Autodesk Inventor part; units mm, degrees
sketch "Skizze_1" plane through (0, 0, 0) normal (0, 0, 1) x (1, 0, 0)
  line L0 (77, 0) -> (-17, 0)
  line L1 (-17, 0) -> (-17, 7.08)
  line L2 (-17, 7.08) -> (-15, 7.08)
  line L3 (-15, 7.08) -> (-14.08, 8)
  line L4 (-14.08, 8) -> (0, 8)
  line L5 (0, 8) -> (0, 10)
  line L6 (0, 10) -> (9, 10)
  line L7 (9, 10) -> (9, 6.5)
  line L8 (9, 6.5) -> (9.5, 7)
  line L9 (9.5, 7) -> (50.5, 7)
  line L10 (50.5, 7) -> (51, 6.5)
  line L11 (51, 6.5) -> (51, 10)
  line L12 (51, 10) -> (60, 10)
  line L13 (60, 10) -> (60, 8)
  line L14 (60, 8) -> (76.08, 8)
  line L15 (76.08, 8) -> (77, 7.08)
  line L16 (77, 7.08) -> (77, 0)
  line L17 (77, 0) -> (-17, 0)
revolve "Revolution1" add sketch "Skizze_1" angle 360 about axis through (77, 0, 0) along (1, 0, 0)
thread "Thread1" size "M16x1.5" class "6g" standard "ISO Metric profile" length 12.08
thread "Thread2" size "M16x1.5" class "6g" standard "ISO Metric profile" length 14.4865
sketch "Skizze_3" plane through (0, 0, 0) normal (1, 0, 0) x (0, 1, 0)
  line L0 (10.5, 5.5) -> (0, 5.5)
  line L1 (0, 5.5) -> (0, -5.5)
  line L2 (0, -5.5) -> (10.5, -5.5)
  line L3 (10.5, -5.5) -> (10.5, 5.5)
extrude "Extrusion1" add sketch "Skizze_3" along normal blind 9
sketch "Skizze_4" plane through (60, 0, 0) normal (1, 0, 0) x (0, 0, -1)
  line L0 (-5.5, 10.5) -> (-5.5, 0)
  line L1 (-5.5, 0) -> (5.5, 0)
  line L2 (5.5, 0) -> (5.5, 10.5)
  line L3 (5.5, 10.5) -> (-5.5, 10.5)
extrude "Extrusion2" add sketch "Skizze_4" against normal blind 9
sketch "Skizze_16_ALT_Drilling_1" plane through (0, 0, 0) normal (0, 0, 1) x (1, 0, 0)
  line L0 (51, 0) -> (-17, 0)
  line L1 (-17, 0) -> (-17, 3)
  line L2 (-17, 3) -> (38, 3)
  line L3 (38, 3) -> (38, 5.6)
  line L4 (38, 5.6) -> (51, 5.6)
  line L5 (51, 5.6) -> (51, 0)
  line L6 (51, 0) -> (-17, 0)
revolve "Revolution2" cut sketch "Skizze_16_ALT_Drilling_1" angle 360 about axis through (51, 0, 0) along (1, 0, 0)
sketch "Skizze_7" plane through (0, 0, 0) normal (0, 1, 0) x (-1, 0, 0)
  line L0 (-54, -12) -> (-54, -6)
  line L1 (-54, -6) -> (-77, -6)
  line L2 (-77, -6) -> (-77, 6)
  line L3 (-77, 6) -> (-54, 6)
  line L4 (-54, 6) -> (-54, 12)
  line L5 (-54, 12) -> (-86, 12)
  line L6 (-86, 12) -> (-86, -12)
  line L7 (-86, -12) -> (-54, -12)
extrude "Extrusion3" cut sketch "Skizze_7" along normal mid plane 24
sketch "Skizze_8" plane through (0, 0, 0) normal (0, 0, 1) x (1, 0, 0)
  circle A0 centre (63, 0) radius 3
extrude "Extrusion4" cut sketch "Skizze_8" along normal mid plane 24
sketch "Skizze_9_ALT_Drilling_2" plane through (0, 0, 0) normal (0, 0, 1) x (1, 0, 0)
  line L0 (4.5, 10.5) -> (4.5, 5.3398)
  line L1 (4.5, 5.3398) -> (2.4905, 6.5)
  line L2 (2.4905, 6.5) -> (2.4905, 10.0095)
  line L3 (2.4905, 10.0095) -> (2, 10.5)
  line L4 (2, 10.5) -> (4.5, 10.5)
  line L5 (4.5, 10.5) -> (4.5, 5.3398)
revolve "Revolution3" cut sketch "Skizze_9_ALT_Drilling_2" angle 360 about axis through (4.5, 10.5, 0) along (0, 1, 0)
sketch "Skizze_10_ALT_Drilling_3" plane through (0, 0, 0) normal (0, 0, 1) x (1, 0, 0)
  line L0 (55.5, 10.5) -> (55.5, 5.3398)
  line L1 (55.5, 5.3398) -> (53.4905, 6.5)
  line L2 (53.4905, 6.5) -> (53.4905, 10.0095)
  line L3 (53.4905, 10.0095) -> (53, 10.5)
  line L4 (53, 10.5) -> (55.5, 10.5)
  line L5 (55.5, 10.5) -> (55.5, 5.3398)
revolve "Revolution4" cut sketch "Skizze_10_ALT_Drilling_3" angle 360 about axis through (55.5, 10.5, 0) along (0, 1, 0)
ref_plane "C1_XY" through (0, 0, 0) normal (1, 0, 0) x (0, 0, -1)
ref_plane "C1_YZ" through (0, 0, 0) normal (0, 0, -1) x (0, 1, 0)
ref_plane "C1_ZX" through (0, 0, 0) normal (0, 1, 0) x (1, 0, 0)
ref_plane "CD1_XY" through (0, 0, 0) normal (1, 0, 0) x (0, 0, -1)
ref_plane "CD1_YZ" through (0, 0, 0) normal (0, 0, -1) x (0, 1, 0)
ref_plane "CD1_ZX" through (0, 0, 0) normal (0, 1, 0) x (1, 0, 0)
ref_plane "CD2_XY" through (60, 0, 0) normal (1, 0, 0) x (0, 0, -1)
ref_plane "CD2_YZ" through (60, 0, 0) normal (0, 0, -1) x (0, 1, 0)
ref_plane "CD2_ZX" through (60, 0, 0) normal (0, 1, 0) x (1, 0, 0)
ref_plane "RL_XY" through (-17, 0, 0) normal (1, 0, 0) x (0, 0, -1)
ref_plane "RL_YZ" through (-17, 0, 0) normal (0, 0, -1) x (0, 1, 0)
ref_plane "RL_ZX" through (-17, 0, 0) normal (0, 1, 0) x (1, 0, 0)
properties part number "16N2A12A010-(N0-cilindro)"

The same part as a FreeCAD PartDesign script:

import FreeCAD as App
import Part
import Sketcher

V = App.Vector
Q = App.Units.Quantity


def add_polygon(sketch, points):
    """Adds a closed chain of lines whose ends are joined by coincident constraints."""
    first, n = sketch.GeometryCount, len(points)
    for a, b in zip(points, points[1:] + points[:1]):
        sketch.addGeometry(Part.LineSegment(App.Vector(*a, 0), App.Vector(*b, 0)), False)
    for i in range(n):
        sketch.addConstraint(Sketcher.Constraint("Coincident", first + i, 2, first + (i + 1) % n, 1))

doc = App.newDocument("Part")
body = doc.addObject("PartDesign::Body", "Body")

# Sketch on XY plane
sketch1 = doc.addObject("Sketcher::SketchObject", "Sketch")
body.addObject(sketch1)
sketch1.AttachmentSupport = (doc.XY_Plane, [""])
sketch1.MapMode = "FlatFace"
add_polygon(sketch1, [(-17, 0), (77, 0), (77, 7.1), (76.1, 8), (60, 8), (60, 10), (51, 10), (51, 6.5), (50.5, 7), (9.5, 7), (9, 6.5), (9, 10), (0, 10), (0, 8), (-14.1, 8), (-15, 7.1), (-17, 7.1)])  # lines 0-16
sketch1.addConstraint([
    Sketcher.Constraint("Horizontal", 0),
    Sketcher.Constraint("Vertical", 1),
    Sketcher.Constraint("Horizontal", 3),
    Sketcher.Constraint("Vertical", 4),
    Sketcher.Constraint("Horizontal", 5),
    Sketcher.Constraint("Vertical", 6),
    Sketcher.Constraint("Horizontal", 8),
    Sketcher.Constraint("Vertical", 10),
    Sketcher.Constraint("Horizontal", 11),
    Sketcher.Constraint("Vertical", 12),
    Sketcher.Constraint("Horizontal", 13),
    Sketcher.Constraint("Horizontal", 15),
    Sketcher.Constraint("Vertical", 16),
    Sketcher.Constraint("PointOnObject", 0, 2, -1),
    Sketcher.Constraint("PointOnObject", 11, 2, -2),
    Sketcher.Constraint("Parallel", 2, 7),
    Sketcher.Constraint("Perpendicular", 7, 9),
    Sketcher.Constraint("Parallel", 9, 14),
    Sketcher.Constraint("Horizontal", 6, 2, 9, 2),
    Sketcher.Constraint("Horizontal", 5, 2, 10, 2),
    Sketcher.Constraint("Horizontal", 3, 2, 12, 2),
    Sketcher.Constraint("Horizontal", 1, 2, 14, 2),
    Sketcher.Constraint("Equal", 5, 11),
    Sketcher.Constraint("Equal", 15, 4),
    Sketcher.Constraint("Equal", 7, 9),
    Sketcher.Constraint("DistanceX", 0, 1, 0, 2, Q("94 mm")),
    Sketcher.Constraint("DistanceX", 5, 2, 5, 1, Q("9 mm")),
    Sketcher.Constraint("DistanceX", 8, 2, 8, 1, Q("41 mm")),
    Sketcher.Constraint("DistanceX", 15, 2, 15, 1, Q("2 mm")),
    Sketcher.Constraint("DistanceY", 6, 2, 6, 1, Q("3.5 mm")),
    Sketcher.Constraint("DistanceX", -1, 1, 0, 2, Q("77 mm")),
    Sketcher.Constraint("DistanceY", -1, 1, 2, 2, Q("8 mm")),
    Sketcher.Constraint("DistanceX", -1, 1, 3, 2, Q("60 mm")),
    Sketcher.Constraint("DistanceX", 3, 2, 3, 1, Q("16.08 mm")),
])
revolution = doc.addObject("PartDesign::Revolution", "Revolution")
body.addObject(revolution)
revolution.Profile = sketch1
revolution.ReferenceAxis = (sketch1, ["H_Axis"])
revolution.Angle = 360

# Sketch on YZ plane
sketch2 = doc.addObject("Sketcher::SketchObject", "Sketch001")
body.addObject(sketch2)
sketch2.AttachmentSupport = (doc.YZ_Plane, [""])
sketch2.MapMode = "FlatFace"
add_polygon(sketch2, [(10, -6), (10, 6), (0, 6), (0, -6)])  # lines 0-3
sketch2.addConstraint([
    Sketcher.Constraint("Vertical", 0),
    Sketcher.Constraint("Horizontal", 1),
    Sketcher.Constraint("Vertical", 2),
    Sketcher.Constraint("Horizontal", 3),
    Sketcher.Constraint("Symmetric", 1, 2, 2, 2, -1, 1),
    Sketcher.Constraint("DistanceY", 0, 1, 0, 2, Q("11 mm")),
    Sketcher.Constraint("DistanceX", 1, 2, 1, 1, Q("10.5 mm")),
])
pad1 = doc.addObject("PartDesign::Pad", "Pad")
body.addObject(pad1)
pad1.Profile = sketch2
pad1.Length = 9

# Sketch on YZ plane
sketch3 = doc.addObject("Sketcher::SketchObject", "Sketch002")
body.addObject(sketch3)
sketch3.AttachmentSupport = (doc.YZ_Plane, [""])
sketch3.MapMode = "FlatFace"
sketch3.AttachmentOffset = App.Placement(V(0, 0, 60), App.Rotation())
add_polygon(sketch3, [(10, -6), (10, 6), (0, 6), (0, -6)])  # lines 0-3
sketch3.addConstraint([
    Sketcher.Constraint("Vertical", 0),
    Sketcher.Constraint("Horizontal", 1),
    Sketcher.Constraint("Vertical", 2),
    Sketcher.Constraint("Horizontal", 3),
    Sketcher.Constraint("Symmetric", 1, 2, 2, 2, -1, 1),
    Sketcher.Constraint("DistanceY", 0, 1, 0, 2, Q("11 mm")),
    Sketcher.Constraint("DistanceX", 1, 2, 1, 1, Q("10.5 mm")),
])
pad2 = doc.addObject("PartDesign::Pad", "Pad001")
body.addObject(pad2)
pad2.Profile = sketch3
pad2.Length = 9
pad2.Reversed = True

# Sketch on XY plane
sketch4 = doc.addObject("Sketcher::SketchObject", "Sketch003")
body.addObject(sketch4)
sketch4.AttachmentSupport = (doc.XY_Plane, [""])
sketch4.MapMode = "FlatFace"
add_polygon(sketch4, [(-17, 0), (51, 0), (51, 5.6), (38, 5.6), (38, 3), (-17, 3)])  # lines 0-5
sketch4.addConstraint([
    Sketcher.Constraint("Horizontal", 0),
    Sketcher.Constraint("Vertical", 1),
    Sketcher.Constraint("Horizontal", 2),
    Sketcher.Constraint("Vertical", 3),
    Sketcher.Constraint("Horizontal", 4),
    Sketcher.Constraint("Vertical", 5),
    Sketcher.Constraint("PointOnObject", 0, 2, -1),
    Sketcher.Constraint("DistanceX", 0, 1, 0, 2, Q("68 mm")),
    Sketcher.Constraint("DistanceX", 2, 2, 2, 1, Q("13 mm")),
    Sketcher.Constraint("DistanceY", 5, 2, 5, 1, Q("3 mm")),
    Sketcher.Constraint("DistanceY", 1, 1, 1, 2, Q("5.6 mm")),
    Sketcher.Constraint("DistanceX", -1, 1, 0, 2, Q("51 mm")),
])
groove = doc.addObject("PartDesign::Groove", "Groove")
body.addObject(groove)
groove.Profile = sketch4
groove.ReferenceAxis = (sketch4, ["H_Axis"])
groove.Angle = 360

# Sketch on XZ plane
sketch5 = doc.addObject("Sketcher::SketchObject", "Sketch004")
body.addObject(sketch5)
sketch5.AttachmentSupport = (doc.XZ_Plane, [""])
sketch5.MapMode = "FlatFace"
add_polygon(sketch5, [(86, -12), (54, -12), (54, -6), (77, -6), (77, 6), (54, 6), (54, 12), (86, 12)])  # lines 0-7
sketch5.addConstraint([
    Sketcher.Constraint("Horizontal", 0),
    Sketcher.Constraint("Vertical", 1),
    Sketcher.Constraint("Horizontal", 2),
    Sketcher.Constraint("Vertical", 3),
    Sketcher.Constraint("Horizontal", 4),
    Sketcher.Constraint("Vertical", 5),
    Sketcher.Constraint("Horizontal", 6),
    Sketcher.Constraint("Vertical", 7),
    Sketcher.Constraint("Symmetric", 1, 2, 4, 2, -1),
    Sketcher.Constraint("Equal", 1, 5),
    Sketcher.Constraint("DistanceX", 0, 2, 0, 1, Q("32 mm")),
    Sketcher.Constraint("DistanceX", 2, 1, 2, 2, Q("23 mm")),
    Sketcher.Constraint("DistanceY", 1, 1, 1, 2, Q("6 mm")),
    Sketcher.Constraint("DistanceY", 3, 1, 3, 2, Q("12 mm")),
    Sketcher.Constraint("DistanceX", -1, 1, 0, 2, Q("54 mm")),
])
pocket1 = doc.addObject("PartDesign::Pocket", "Pocket")
body.addObject(pocket1)
pocket1.Profile = sketch5
pocket1.Length = 24
pocket1.Midplane = True

# Sketch on XY plane
sketch6 = doc.addObject("Sketcher::SketchObject", "Sketch005")
body.addObject(sketch6)
sketch6.AttachmentSupport = (doc.XY_Plane, [""])
sketch6.MapMode = "FlatFace"
sketch6.addGeometry(Part.Circle(V(63, 0, 0), V(0, 0, 1), 3), False)
sketch6.addConstraint([
    Sketcher.Constraint("PointOnObject", 0, 3, -1),
    Sketcher.Constraint("Diameter", 0, Q("6 mm")),
    Sketcher.Constraint("DistanceX", -1, 1, 0, 3, Q("63 mm")),
])
pocket2 = doc.addObject("PartDesign::Pocket", "Pocket001")
body.addObject(pocket2)
pocket2.Profile = sketch6
pocket2.Length = 24
pocket2.Midplane = True

# Sketch on XY plane
sketch7 = doc.addObject("Sketcher::SketchObject", "Sketch006")
body.addObject(sketch7)
sketch7.AttachmentSupport = (doc.XY_Plane, [""])
sketch7.MapMode = "FlatFace"
add_polygon(sketch7, [(4.5, 5.3), (4.5, 10.5), (2, 10.5), (2.5, 10), (2.5, 6.5)])  # lines 0-4
sketch7.addGeometry(Part.LineSegment(V(4.5, 5.3, 0), V(4.5, 10.5, 0)), True)  # axis
sketch7.addConstraint([
    Sketcher.Constraint("Vertical", 0),
    Sketcher.Constraint("Horizontal", 1),
    Sketcher.Constraint("Vertical", 3),
    Sketcher.Constraint("Vertical", 5),
    Sketcher.Constraint("Coincident", 5, 1, 4, 2),
    Sketcher.Constraint("Horizontal", 1, 2, 5, 2),
    Sketcher.Constraint("Angle", 2, Q("-45 deg")),
    Sketcher.Constraint("Angle", 4, Q("-30.0003 deg")),
    Sketcher.Constraint("DistanceX", 1, 2, 1, 1, Q("2.5 mm")),
    Sketcher.Constraint("DistanceX", -1, 1, 1, 2, Q("2 mm")),
    Sketcher.Constraint("DistanceY", 3, 2, 1, 2, Q("4 mm")),
    Sketcher.Constraint("DistanceY", -1, 1, 0, 2, Q("10.5 mm")),
    Sketcher.Constraint("DistanceY", 0, 1, 0, 2, Q("5.1602 mm")),
])
groove2 = doc.addObject("PartDesign::Groove", "Groove001")
body.addObject(groove2)
groove2.Profile = sketch7
groove2.ReferenceAxis = (sketch7, ["Axis0"])
groove2.Angle = 360

# Sketch on XY plane
sketch8 = doc.addObject("Sketcher::SketchObject", "Sketch007")
body.addObject(sketch8)
sketch8.AttachmentSupport = (doc.XY_Plane, [""])
sketch8.MapMode = "FlatFace"
add_polygon(sketch8, [(55.5, 5.3), (55.5, 10.5), (53, 10.5), (53.5, 10), (53.5, 6.5)])  # lines 0-4
sketch8.addGeometry(Part.LineSegment(V(55.5, 5.3, 0), V(55.5, 10.5, 0)), True)  # axis
sketch8.addConstraint([
    Sketcher.Constraint("Vertical", 0),
    Sketcher.Constraint("Horizontal", 1),
    Sketcher.Constraint("Vertical", 3),
    Sketcher.Constraint("Vertical", 5),
    Sketcher.Constraint("Coincident", 5, 1, 4, 2),
    Sketcher.Constraint("Horizontal", 1, 2, 5, 2),
    Sketcher.Constraint("Angle", 2, Q("-45 deg")),
    Sketcher.Constraint("Angle", 4, Q("-30.0003 deg")),
    Sketcher.Constraint("DistanceX", 1, 2, 1, 1, Q("2.5 mm")),
    Sketcher.Constraint("DistanceX", -1, 1, 1, 2, Q("53 mm")),
    Sketcher.Constraint("DistanceY", 3, 2, 1, 2, Q("4 mm")),
    Sketcher.Constraint("DistanceY", -1, 1, 0, 2, Q("10.5 mm")),
    Sketcher.Constraint("DistanceY", 0, 1, 0, 2, Q("5.1602 mm")),
])
groove3 = doc.addObject("PartDesign::Groove", "Groove002")
body.addObject(groove3)
groove3.Profile = sketch8
groove3.ReferenceAxis = (sketch8, ["Axis0"])
groove3.Angle = 360

doc.recompute()
